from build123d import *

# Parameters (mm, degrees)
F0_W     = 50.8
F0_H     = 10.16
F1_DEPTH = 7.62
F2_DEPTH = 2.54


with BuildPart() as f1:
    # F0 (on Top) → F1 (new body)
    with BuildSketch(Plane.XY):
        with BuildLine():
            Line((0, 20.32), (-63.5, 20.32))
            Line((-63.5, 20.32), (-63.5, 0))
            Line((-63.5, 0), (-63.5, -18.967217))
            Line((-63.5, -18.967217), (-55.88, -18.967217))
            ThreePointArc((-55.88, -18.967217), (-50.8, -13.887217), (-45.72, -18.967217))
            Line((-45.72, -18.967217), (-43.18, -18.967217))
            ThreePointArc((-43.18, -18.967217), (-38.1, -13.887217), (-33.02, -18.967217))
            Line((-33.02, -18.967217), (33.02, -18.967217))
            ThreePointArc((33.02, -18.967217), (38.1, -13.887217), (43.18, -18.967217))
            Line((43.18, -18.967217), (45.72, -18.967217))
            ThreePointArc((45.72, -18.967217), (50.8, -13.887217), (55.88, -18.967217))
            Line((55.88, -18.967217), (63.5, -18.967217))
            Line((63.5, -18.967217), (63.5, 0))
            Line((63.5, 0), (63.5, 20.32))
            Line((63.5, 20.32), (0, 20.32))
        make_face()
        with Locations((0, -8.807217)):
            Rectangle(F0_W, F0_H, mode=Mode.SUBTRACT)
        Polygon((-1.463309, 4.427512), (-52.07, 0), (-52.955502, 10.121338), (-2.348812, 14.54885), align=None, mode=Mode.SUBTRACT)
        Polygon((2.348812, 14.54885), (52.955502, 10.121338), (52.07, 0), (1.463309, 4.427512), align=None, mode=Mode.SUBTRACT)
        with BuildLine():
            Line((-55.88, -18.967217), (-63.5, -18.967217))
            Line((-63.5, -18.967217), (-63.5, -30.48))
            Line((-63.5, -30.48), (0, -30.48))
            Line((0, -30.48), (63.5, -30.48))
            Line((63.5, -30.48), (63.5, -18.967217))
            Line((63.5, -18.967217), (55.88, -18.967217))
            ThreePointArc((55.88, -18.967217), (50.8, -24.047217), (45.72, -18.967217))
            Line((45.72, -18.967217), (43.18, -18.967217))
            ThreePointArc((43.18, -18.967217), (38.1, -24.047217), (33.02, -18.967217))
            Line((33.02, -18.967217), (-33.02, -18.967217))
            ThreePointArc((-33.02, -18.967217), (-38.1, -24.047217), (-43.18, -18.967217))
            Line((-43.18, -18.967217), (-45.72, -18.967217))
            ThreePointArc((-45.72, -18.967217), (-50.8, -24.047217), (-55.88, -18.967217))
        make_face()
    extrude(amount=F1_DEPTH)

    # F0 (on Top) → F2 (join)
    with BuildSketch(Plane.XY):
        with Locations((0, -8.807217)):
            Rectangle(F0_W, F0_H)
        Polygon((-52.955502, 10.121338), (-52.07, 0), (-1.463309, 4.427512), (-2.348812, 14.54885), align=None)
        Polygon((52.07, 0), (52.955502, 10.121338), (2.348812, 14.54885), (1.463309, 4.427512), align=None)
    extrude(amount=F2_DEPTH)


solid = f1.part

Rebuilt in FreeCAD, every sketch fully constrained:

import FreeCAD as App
import Part
import Sketcher
from FreeCAD import Vector
Q = App.Units.Quantity


def add_polygon(sketch, points):
    """Adds a closed chain of lines whose ends are joined by coincident constraints."""
    first, n = sketch.GeometryCount, len(points)
    for a, b in zip(points, points[1:] + points[:1]):
        sketch.addGeometry(Part.LineSegment(App.Vector(*a, 0), App.Vector(*b, 0)), False)
    for i in range(n):
        sketch.addConstraint(Sketcher.Constraint("Coincident", first + i, 2, first + (i + 1) % n, 1))

doc = App.newDocument("Part")
body = doc.addObject("PartDesign::Body", "Body")

sketch1 = body.newObject("Sketcher::SketchObject", "Sketch")
sketch1.AttachmentSupport = (doc.getObject("XY_Plane"), [""])
sketch1.MapMode = "FlatFace"
add_polygon(sketch1, [(-64, 20), (-64, -30), (64, -30), (64, 20)])
sketch1.addGeometry(Part.Circle(Vector(-51, -19, 0), Vector(0, 0, 1), 5), False)
sketch1.addGeometry(Part.Circle(Vector(51, -19, 0), Vector(0, 0, 1), 5), False)
sketch1.addGeometry(Part.Circle(Vector(-38, -19, 0), Vector(0, 0, 1), 5), False)
sketch1.addGeometry(Part.Circle(Vector(38, -19, 0), Vector(0, 0, 1), 5), False)
add_polygon(sketch1, [(25, -14), (-25, -14), (-25, -4), (25, -4)])
add_polygon(sketch1, [(-2, 15), (-1, 4), (-52, 0), (-53, 10)])
add_polygon(sketch1, [(1, 4), (2, 15), (53, 10), (52, 0)])
sketch1.addConstraint([
    Sketcher.Constraint("Vertical", 0),
    Sketcher.Constraint("Horizontal", 1),
    Sketcher.Constraint("Vertical", 2),
    Sketcher.Constraint("Horizontal", 3),
    Sketcher.Constraint("Horizontal", 8),
    Sketcher.Constraint("Vertical", 9),
    Sketcher.Constraint("Horizontal", 10),
    Sketcher.Constraint("Vertical", 11),
    Sketcher.Constraint("Equal", 4, 5),
    Sketcher.Constraint("Equal", 5, 6),
    Sketcher.Constraint("Equal", 6, 7),
    Sketcher.Constraint("Symmetric", 13, 2, 18, 2, -1, 1),
    Sketcher.Constraint("Symmetric", 4, 3, 5, 3, -2),
    Sketcher.Constraint("Symmetric", 6, 3, 7, 3, -2),
    Sketcher.Constraint("Symmetric", 15, 2, 16, 2, -2),
    Sketcher.Constraint("Symmetric", 14, 2, 17, 2, -2),
    Sketcher.Constraint("Symmetric", 12, 2, 19, 2, -2),
    Sketcher.Constraint("PointOnObject", 13, 2, -1),
    Sketcher.Constraint("Perpendicular", 12, 13),
    Sketcher.Constraint("Perpendicular", 13, 14),
    Sketcher.Constraint("Perpendicular", 14, 15),
    Sketcher.Constraint("Horizontal", 5, 3, 6, 3),
    Sketcher.Constraint("Equal", 10, 0),
    Sketcher.Constraint("Diameter", 4, Q("0.4 in")),
    Sketcher.Constraint("DistanceX", 1, 1, 1, 2, Q("5 in")),
    Sketcher.Constraint("DistanceX", 8, 2, 8, 1, Q("2 in")),
    Sketcher.Constraint("Distance", 13, Q("2 in")),
    Sketcher.Constraint("DistanceY", 9, 1, 9, 2, Q("0.4 in")),
    Sketcher.Constraint("DistanceX", 4, 3, -1, 1, Q("2 in")),
    Sketcher.Constraint("DistanceX", 8, 2, -1, 1, Q("1 in")),
    Sketcher.Constraint("Angle", 12, Q("-84.999996 deg")),
    Sketcher.Constraint("DistanceX", 6, 3, 7, 3, Q("3 in")),
    Sketcher.Constraint("DistanceX", 0, 2, 6, 3, Q("1 in")),
    Sketcher.Constraint("Distance", 12, Q("0.4 in")),
    Sketcher.Constraint("DistanceY", 0, 2, -1, 1, Q("1.2 in")),
    Sketcher.Constraint("DistanceY", 6, 3, 8, 2, Q("0.2 in")),
    Sketcher.Constraint("DistanceX", 13, 2, -1, 1, Q("2.05 in")),
    Sketcher.Constraint("DistanceY", 9, 2, 12, 2, Q("8.154729 mm")),
])
pad1 = body.newObject("PartDesign::Pad", "Pad")
pad1.Profile = sketch1
pad1.Length = Q("0.3 in")

sketch2 = body.newObject("Sketcher::SketchObject", "Sketch001")
sketch2.AttachmentSupport = (doc.getObject("XY_Plane"), [""])
sketch2.MapMode = "FlatFace"
add_polygon(sketch2, [(-25, -4), (-25, -14), (25, -14), (25, -4)])
add_polygon(sketch2, [(-53, 10), (-52, 0), (-1, 4), (-2, 15)])
add_polygon(sketch2, [(52, 0), (53, 10), (2, 15), (1, 4)])
sketch2.addConstraint([
    Sketcher.Constraint("Vertical", 0),
    Sketcher.Constraint("Horizontal", 1),
    Sketcher.Constraint("Vertical", 2),
    Sketcher.Constraint("Horizontal", 3),
    Sketcher.Constraint("Symmetric", 4, 2, 11, 2, -1, 1),
    Sketcher.Constraint("Symmetric", 7, 2, 8, 2, -2),
    Sketcher.Constraint("Symmetric", 6, 2, 9, 2, -2),
    Sketcher.Constraint("Symmetric", 5, 2, 10, 2, -2),
    Sketcher.Constraint("PointOnObject", 4, 2, -1),
    Sketcher.Constraint("Perpendicular", 4, 5),
    Sketcher.Constraint("Perpendicular", 5, 6),
    Sketcher.Constraint("Perpendicular", 6, 7),
    Sketcher.Constraint("DistanceX", 1, 1, 1, 2, Q("2 in")),
    Sketcher.Constraint("Distance", 5, Q("2 in")),
    Sketcher.Constraint("DistanceY", 0, 2, 0, 1, Q("0.4 in")),
    Sketcher.Constraint("DistanceX", 0, 2, -1, 1, Q("1 in")),
    Sketcher.Constraint("Angle", 4, Q("-85.000002 deg")),
    Sketcher.Constraint("Distance", 4, Q("0.4 in")),
    Sketcher.Constraint("DistanceX", 4, 2, -1, 1, Q("2.05 in")),
    Sketcher.Constraint("DistanceY", 3, 2, 5, 2, Q("8.154729 mm")),
])
pad2 = body.newObject("PartDesign::Pad", "Pad001")
pad2.Profile = sketch2
pad2.Length = Q("0.1 in")

doc.recompute()
